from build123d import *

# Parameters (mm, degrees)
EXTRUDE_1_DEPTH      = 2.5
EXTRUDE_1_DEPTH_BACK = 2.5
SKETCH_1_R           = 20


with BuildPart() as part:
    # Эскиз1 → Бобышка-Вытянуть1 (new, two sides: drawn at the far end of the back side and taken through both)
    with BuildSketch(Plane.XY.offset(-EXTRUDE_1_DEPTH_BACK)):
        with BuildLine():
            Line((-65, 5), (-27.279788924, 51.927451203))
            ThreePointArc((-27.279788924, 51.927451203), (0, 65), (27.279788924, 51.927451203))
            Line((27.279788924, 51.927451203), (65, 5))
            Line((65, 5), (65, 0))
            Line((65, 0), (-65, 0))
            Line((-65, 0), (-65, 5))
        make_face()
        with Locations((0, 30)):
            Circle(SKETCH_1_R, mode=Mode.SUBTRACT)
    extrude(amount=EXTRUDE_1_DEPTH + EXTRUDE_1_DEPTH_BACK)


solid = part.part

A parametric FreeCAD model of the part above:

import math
import FreeCAD as App
import Part
import Sketcher
from FreeCAD import Vector

doc = App.newDocument("Part")
body = doc.addObject("PartDesign::Body", "Body")

# Sketch on XY plane
sketch1 = body.newObject("Sketcher::SketchObject", "Sketch")
sketch1.AttachmentSupport = (doc.getObject("XY_Plane"), [""])
sketch1.MapMode = "FlatFace"
sketch1.addGeometry([
    Part.LineSegment(Vector(-27, 52, 0), Vector(-65, 5, 0)),  # 0
    Part.LineSegment(Vector(-65, 5, 0), Vector(-65, 0, 0)),  # 1
    Part.LineSegment(Vector(-65, 0, 0), Vector(65, 0, 0)),  # 2
    Part.LineSegment(Vector(65, 0, 0), Vector(65, 5, 0)),  # 3
    Part.LineSegment(Vector(65, 5, 0), Vector(27, 52, 0)),  # 4
    Part.ArcOfCircle(Part.Circle(Vector(0, 30, 0), Vector(0, 0, 1), 35), math.radians(39), math.radians(141)),  # 5
    Part.Circle(Vector(0, 30, 0), Vector(0, 0, 1), 20),  # 6
], False)
sketch1.addConstraint([
    Sketcher.Constraint("Coincident", 0, 2, 1, 1),
    Sketcher.Constraint("Coincident", 1, 2, 2, 1),
    Sketcher.Constraint("Coincident", 2, 2, 3, 1),
    Sketcher.Constraint("Coincident", 3, 2, 4, 1),
    Sketcher.Constraint("Tangent", 4, 2, 5, 1),
    Sketcher.Constraint("Tangent", 5, 2, 0, 1),
    Sketcher.Constraint("Vertical", 1),
    Sketcher.Constraint("Horizontal", 2),
    Sketcher.Constraint("Vertical", 3),
    Sketcher.Constraint("Coincident", 6, 3, 5, 3),
    Sketcher.Constraint("Symmetric", 1, 2, 2, 2, -1, 1),
    Sketcher.Constraint("Symmetric", 4, 2, 5, 2, -2),
    Sketcher.Constraint("Diameter", 6, 40.0),
    Sketcher.Constraint("Radius", 5, 35.0),
    Sketcher.Constraint("DistanceX", 2, 1, 2, 2, 130.0),
    Sketcher.Constraint("DistanceY", 1, 2, 1, 1, 5.0),
    Sketcher.Constraint("DistanceY", -1, 1, 5, 3, 30.0),
])
pad1 = body.newObject("PartDesign::Pad", "Pad")
pad1.Profile = sketch1
pad1.Type = "TwoLengths"
pad1.Length = 2.5
pad1.Length2 = 2.5

doc.recompute()
